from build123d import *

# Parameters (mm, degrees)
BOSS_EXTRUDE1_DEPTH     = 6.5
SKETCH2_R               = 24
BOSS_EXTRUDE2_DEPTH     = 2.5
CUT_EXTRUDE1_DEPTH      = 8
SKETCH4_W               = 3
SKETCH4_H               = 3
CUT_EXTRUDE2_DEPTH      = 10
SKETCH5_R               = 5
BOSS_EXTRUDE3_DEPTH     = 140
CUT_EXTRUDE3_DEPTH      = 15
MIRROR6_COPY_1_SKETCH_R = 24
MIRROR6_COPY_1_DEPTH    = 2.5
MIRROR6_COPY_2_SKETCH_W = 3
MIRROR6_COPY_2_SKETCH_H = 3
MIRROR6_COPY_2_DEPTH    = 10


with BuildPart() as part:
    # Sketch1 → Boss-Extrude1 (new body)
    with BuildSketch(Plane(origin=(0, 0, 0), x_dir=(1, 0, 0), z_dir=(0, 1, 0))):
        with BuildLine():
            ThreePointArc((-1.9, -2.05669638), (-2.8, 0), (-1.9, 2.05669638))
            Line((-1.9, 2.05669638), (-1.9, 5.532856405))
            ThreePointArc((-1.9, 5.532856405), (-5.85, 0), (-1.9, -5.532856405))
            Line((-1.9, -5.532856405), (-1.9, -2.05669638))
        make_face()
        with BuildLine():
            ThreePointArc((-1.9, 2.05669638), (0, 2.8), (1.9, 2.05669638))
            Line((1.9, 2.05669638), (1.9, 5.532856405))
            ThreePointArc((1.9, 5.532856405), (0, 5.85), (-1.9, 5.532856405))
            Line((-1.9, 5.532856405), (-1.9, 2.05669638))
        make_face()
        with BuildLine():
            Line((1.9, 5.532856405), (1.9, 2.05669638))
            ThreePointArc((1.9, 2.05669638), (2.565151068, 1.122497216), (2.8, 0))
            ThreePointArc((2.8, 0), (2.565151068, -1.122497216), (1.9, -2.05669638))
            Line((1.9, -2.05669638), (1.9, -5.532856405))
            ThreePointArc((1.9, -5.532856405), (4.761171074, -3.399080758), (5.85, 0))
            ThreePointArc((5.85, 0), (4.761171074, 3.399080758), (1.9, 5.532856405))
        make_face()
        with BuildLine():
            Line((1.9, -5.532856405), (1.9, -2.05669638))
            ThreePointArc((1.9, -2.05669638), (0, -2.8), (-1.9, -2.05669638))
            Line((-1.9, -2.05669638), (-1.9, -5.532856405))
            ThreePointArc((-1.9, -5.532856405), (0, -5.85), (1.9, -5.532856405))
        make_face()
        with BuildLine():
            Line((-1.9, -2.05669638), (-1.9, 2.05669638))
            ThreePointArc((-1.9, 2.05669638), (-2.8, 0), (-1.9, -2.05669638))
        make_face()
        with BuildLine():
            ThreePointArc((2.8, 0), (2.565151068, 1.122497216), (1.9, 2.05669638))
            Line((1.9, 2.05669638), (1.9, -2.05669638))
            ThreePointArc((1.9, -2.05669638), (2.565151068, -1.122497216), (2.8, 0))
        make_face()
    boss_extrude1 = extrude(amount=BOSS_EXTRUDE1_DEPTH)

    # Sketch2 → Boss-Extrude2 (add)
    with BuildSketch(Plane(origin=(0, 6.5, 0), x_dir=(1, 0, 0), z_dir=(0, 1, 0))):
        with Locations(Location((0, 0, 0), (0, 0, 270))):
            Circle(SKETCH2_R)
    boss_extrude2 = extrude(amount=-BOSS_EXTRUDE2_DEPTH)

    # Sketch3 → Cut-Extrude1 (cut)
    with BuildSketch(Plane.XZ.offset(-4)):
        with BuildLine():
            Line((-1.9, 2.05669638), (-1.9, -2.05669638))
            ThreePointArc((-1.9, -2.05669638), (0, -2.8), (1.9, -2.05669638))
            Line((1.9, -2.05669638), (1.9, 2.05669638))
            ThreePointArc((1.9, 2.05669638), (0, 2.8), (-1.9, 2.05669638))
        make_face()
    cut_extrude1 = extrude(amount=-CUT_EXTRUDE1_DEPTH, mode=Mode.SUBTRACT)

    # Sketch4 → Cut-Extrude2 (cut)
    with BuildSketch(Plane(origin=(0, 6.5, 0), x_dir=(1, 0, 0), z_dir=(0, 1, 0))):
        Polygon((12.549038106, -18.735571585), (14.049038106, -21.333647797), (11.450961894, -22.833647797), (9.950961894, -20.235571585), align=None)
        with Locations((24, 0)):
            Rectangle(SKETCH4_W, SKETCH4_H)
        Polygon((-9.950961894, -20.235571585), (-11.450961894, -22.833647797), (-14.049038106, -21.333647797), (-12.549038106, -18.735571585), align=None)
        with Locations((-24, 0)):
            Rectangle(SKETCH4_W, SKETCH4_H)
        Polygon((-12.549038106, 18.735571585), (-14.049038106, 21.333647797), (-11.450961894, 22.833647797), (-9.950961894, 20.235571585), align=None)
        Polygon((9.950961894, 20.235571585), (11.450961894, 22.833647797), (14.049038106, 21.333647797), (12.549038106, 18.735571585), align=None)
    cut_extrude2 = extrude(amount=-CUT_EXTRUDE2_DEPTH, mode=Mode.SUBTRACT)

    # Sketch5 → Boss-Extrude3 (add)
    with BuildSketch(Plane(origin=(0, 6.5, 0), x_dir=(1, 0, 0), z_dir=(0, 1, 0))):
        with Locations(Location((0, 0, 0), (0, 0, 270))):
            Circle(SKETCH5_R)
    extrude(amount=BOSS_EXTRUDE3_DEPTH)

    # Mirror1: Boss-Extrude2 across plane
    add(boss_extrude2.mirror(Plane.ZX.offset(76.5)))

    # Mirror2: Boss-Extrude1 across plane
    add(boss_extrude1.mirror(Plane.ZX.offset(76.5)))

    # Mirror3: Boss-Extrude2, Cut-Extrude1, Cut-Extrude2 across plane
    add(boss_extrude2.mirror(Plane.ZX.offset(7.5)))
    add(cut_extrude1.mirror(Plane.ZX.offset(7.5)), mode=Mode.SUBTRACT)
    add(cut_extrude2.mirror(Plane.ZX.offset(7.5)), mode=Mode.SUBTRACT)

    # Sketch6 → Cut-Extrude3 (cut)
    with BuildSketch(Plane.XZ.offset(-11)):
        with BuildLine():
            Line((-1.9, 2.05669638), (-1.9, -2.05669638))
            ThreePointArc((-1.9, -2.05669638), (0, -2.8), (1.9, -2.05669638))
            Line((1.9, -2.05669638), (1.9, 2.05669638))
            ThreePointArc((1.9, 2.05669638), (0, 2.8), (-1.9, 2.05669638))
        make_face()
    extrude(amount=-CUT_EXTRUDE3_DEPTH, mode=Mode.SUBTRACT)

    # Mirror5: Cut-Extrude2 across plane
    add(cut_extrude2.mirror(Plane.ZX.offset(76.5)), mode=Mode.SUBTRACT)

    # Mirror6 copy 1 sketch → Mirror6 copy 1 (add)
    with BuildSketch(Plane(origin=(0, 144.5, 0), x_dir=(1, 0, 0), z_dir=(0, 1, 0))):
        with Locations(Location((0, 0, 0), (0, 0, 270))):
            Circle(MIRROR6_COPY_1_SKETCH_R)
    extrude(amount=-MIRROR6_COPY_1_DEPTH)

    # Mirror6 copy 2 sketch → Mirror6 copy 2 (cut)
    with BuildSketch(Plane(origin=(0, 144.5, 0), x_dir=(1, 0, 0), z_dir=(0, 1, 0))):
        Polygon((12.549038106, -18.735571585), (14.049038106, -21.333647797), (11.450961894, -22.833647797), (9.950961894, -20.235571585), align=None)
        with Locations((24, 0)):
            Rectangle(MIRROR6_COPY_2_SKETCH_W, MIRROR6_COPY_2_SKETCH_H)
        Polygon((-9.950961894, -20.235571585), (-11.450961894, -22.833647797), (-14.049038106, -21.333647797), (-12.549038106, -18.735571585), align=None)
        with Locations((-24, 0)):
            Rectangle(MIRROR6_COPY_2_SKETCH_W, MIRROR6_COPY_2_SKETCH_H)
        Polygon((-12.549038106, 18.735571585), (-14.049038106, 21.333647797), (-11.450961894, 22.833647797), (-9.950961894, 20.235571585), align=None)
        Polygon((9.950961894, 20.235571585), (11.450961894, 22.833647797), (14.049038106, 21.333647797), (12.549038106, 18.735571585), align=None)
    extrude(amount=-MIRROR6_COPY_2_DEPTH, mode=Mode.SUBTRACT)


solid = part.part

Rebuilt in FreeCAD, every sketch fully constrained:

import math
import FreeCAD as App
import Part
import Sketcher
from FreeCAD import Vector
Q = App.Units.Quantity


def add_polygon(sketch, points):
    """Adds a closed chain of lines whose ends are joined by coincident constraints."""
    first, n = sketch.GeometryCount, len(points)
    for a, b in zip(points, points[1:] + points[:1]):
        sketch.addGeometry(Part.LineSegment(App.Vector(*a, 0), App.Vector(*b, 0)), False)
    for i in range(n):
        sketch.addConstraint(Sketcher.Constraint("Coincident", first + i, 2, first + (i + 1) % n, 1))

doc = App.newDocument("Part")
body = doc.addObject("PartDesign::Body", "Body")

# Sketch on XZ plane
sketch1 = body.newObject("Sketcher::SketchObject", "Sketch")
sketch1.AttachmentSupport = (doc.getObject("XZ_Plane"), [""])
sketch1.MapMode = "FlatFace"
sketch1.addGeometry(Part.ArcOfCircle(Part.Circle(Vector(0, 0, 0), Vector(0, 0, 1), 5.85), math.radians(0), math.radians(71.04737)), False)
sketch1.addGeometry(Part.ArcOfCircle(Part.Circle(Vector(0, 0, 0), Vector(0, 0, 1), 5.85), math.radians(-71.04737), math.radians(0)), False)
sketch1.addGeometry(Part.ArcOfCircle(Part.Circle(Vector(0, 0, 0), Vector(0, 0, 1), 5.85), math.radians(-108.95263), math.radians(-71.04737)), False)
sketch1.addGeometry(Part.ArcOfCircle(Part.Circle(Vector(0, 0, 0), Vector(0, 0, 1), 5.85), math.radians(108.95263), math.radians(251.04737)), False)
sketch1.addGeometry(Part.ArcOfCircle(Part.Circle(Vector(0, 0, 0), Vector(0, 0, 1), 5.85), math.radians(71.04737), math.radians(108.95263)), False)
sketch1.addGeometry(Part.ArcOfCircle(Part.Circle(Vector(0, 0, 0), Vector(0, 0, 1), 2.8), math.radians(-132.73211), math.radians(-47.26789)), False)
sketch1.addGeometry(Part.LineSegment(Vector(1.9, -2.056696, 0), Vector(1.9, 2.056696, 0)), False)
sketch1.addGeometry(Part.ArcOfCircle(Part.Circle(Vector(0, 0, 0), Vector(0, 0, 1), 2.8), math.radians(47.26789), math.radians(132.73211)), False)
sketch1.addGeometry(Part.LineSegment(Vector(-1.9, 2.056696, 0), Vector(-1.9, -2.056696, 0)), False)
sketch1.addConstraint(Sketcher.Constraint("Tangent", 0, 1, 1, 2))
sketch1.addConstraint(Sketcher.Constraint("Tangent", 1, 1, 2, 2))
sketch1.addConstraint(Sketcher.Constraint("Tangent", 2, 1, 3, 2))
sketch1.addConstraint(Sketcher.Constraint("Tangent", 3, 1, 4, 2))
sketch1.addConstraint(Sketcher.Constraint("Tangent", 4, 1, 0, 2))
sketch1.addConstraint(Sketcher.Constraint("Coincident", 5, 2, 6, 1))
sketch1.addConstraint(Sketcher.Constraint("Coincident", 6, 2, 7, 1))
sketch1.addConstraint(Sketcher.Constraint("Coincident", 7, 2, 8, 1))
sketch1.addConstraint(Sketcher.Constraint("Coincident", 8, 2, 5, 1))
sketch1.addConstraint(Sketcher.Constraint("Vertical", 6))
sketch1.addConstraint(Sketcher.Constraint("Vertical", 8))
sketch1.addConstraint(Sketcher.Constraint("Coincident", 0, 3, -1, 1))
sketch1.addConstraint(Sketcher.Constraint("Coincident", 2, 3, -1, 1))
sketch1.addConstraint(Sketcher.Constraint("Coincident", 5, 3, -1, 1))
sketch1.addConstraint(Sketcher.Constraint("Coincident", 7, 3, -1, 1))
sketch1.addConstraint(Sketcher.Constraint("Equal", 5, 7))
sketch1.addConstraint(Sketcher.Constraint("PointOnObject", 0, 1, -1))
sketch1.addConstraint(Sketcher.Constraint("Horizontal", 1, 1, 2, 1))
sketch1.addConstraint(Sketcher.Constraint("Horizontal", 3, 1, 4, 1))
sketch1.addConstraint(Sketcher.Constraint("Horizontal", 6, 2, 7, 2))
sketch1.addConstraint(Sketcher.Constraint("Vertical", 2, 1, 3, 1))
sketch1.addConstraint(Sketcher.Constraint("Vertical", 4, 1, 5, 2))
sketch1.addConstraint(Sketcher.Constraint("Radius", 5, Q("2.8 mm")))
sketch1.addConstraint(Sketcher.Constraint("Radius", 0, Q("5.85 mm")))
sketch1.addConstraint(Sketcher.Constraint("DistanceX", -1, 1, 1, 1, Q("1.9 mm")))
pad1 = body.newObject("PartDesign::Pad", "Pad")
pad1.Profile = sketch1
pad1.Length = 6.5
pad1.Reversed = True

# Sketch on XZ plane
sketch2 = body.newObject("Sketcher::SketchObject", "Sketch001")
sketch2.AttachmentSupport = (doc.getObject("XZ_Plane"), [""])
sketch2.MapMode = "FlatFace"
sketch2.AttachmentOffset = App.Placement(Vector(0, 0, -6.5), App.Rotation())
sketch2.addGeometry(Part.Circle(Vector(0, 0, 0), Vector(0, 0, 1), 24), False)
sketch2.addConstraint(Sketcher.Constraint("Coincident", 0, 3, -1, 1))
sketch2.addConstraint(Sketcher.Constraint("Diameter", 0, Q("48 mm")))
pad2 = body.newObject("PartDesign::Pad", "Pad001")
pad2.Profile = sketch2
pad2.Length = 2.5

# Sketch on XZ plane
sketch3 = body.newObject("Sketcher::SketchObject", "Sketch002")
sketch3.AttachmentSupport = (doc.getObject("XZ_Plane"), [""])
sketch3.MapMode = "FlatFace"
sketch3.AttachmentOffset = App.Placement(Vector(0, 0, -4), App.Rotation())
sketch3.addGeometry(Part.LineSegment(Vector(-1.9, 2.056696, 0), Vector(-1.9, -2.056696, 0)), False)
sketch3.addGeometry(Part.ArcOfCircle(Part.Circle(Vector(0, 0, 0), Vector(0, 0, 1), 2.8), math.radians(-132.73211), math.radians(-47.26789)), False)
sketch3.addGeometry(Part.LineSegment(Vector(1.9, -2.056696, 0), Vector(1.9, 2.056696, 0)), False)
sketch3.addGeometry(Part.ArcOfCircle(Part.Circle(Vector(0, 0, 0), Vector(0, 0, 1), 2.8), math.radians(47.26789), math.radians(132.73211)), False)
sketch3.addConstraint(Sketcher.Constraint("Coincident", 0, 2, 1, 1))
sketch3.addConstraint(Sketcher.Constraint("Coincident", 1, 2, 2, 1))
sketch3.addConstraint(Sketcher.Constraint("Coincident", 2, 2, 3, 1))
sketch3.addConstraint(Sketcher.Constraint("Coincident", 3, 2, 0, 1))
sketch3.addConstraint(Sketcher.Constraint("Vertical", 0))
sketch3.addConstraint(Sketcher.Constraint("Vertical", 2))
sketch3.addConstraint(Sketcher.Constraint("Coincident", 1, 3, -1, 1))
sketch3.addConstraint(Sketcher.Constraint("Coincident", 3, 3, -1, 1))
sketch3.addConstraint(Sketcher.Constraint("Equal", 1, 3))
sketch3.addConstraint(Sketcher.Constraint("Horizontal", 0, 2, 1, 2))
sketch3.addConstraint(Sketcher.Constraint("Radius", 1, Q("2.8 mm")))
sketch3.addConstraint(Sketcher.Constraint("DistanceX", 0, 2, -1, 1, Q("1.9 mm")))
pocket1 = body.newObject("PartDesign::Pocket", "Pocket")
pocket1.Profile = sketch3
pocket1.Length = 8

# Sketch on XZ plane
sketch4 = body.newObject("Sketcher::SketchObject", "Sketch003")
sketch4.AttachmentSupport = (doc.getObject("XZ_Plane"), [""])
sketch4.MapMode = "FlatFace"
sketch4.AttachmentOffset = App.Placement(Vector(0, 0, -6.5), App.Rotation())
add_polygon(sketch4, [(14.049038, 21.333648), (12.549038, 18.735572), (9.950962, 20.235572), (11.450962, 22.833648)])  # lines 0-3
add_polygon(sketch4, [(22.5, -1.5), (22.5, 1.5), (25.5, 1.5), (25.5, -1.5)])  # lines 4-7
add_polygon(sketch4, [(-11.450962, 22.833648), (-9.950962, 20.235572), (-12.549038, 18.735572), (-14.049038, 21.333648)])  # lines 8-11
add_polygon(sketch4, [(-25.5, -1.5), (-25.5, 1.5), (-22.5, 1.5), (-22.5, -1.5)])  # lines 12-15
add_polygon(sketch4, [(-14.049038, -21.333648), (-12.549038, -18.735572), (-9.950962, -20.235572), (-11.450962, -22.833648)])  # lines 16-19
add_polygon(sketch4, [(11.450962, -22.833648), (9.950962, -20.235572), (12.549038, -18.735572), (14.049038, -21.333648)])  # lines 20-23
sketch4.addConstraint(Sketcher.Constraint("Vertical", 4))
sketch4.addConstraint(Sketcher.Constraint("Horizontal", 5))
sketch4.addConstraint(Sketcher.Constraint("Vertical", 6))
sketch4.addConstraint(Sketcher.Constraint("Horizontal", 7))
sketch4.addConstraint(Sketcher.Constraint("Vertical", 12))
sketch4.addConstraint(Sketcher.Constraint("Horizontal", 13))
sketch4.addConstraint(Sketcher.Constraint("Vertical", 14))
sketch4.addConstraint(Sketcher.Constraint("Horizontal", 15))
sketch4.addConstraint(Sketcher.Constraint("Symmetric", 6, 2, 12, 2, -1, 1))
sketch4.addConstraint(Sketcher.Constraint("Symmetric", 4, 2, 14, 2, -1, 1))
sketch4.addConstraint(Sketcher.Constraint("Symmetric", 0, 2, 16, 2, -1, 1))
sketch4.addConstraint(Sketcher.Constraint("Symmetric", 1, 2, 17, 2, -1, 1))
sketch4.addConstraint(Sketcher.Constraint("Symmetric", 2, 2, 18, 2, -1, 1))
sketch4.addConstraint(Sketcher.Constraint("Symmetric", 3, 2, 19, 2, -1, 1))
sketch4.addConstraint(Sketcher.Constraint("Symmetric", 8, 2, 20, 2, -1, 1))
sketch4.addConstraint(Sketcher.Constraint("Symmetric", 9, 2, 21, 2, -1, 1))
sketch4.addConstraint(Sketcher.Constraint("Symmetric", 10, 2, 22, 2, -1, 1))
sketch4.addConstraint(Sketcher.Constraint("Symmetric", 11, 2, 23, 2, -1, 1))
sketch4.addConstraint(Sketcher.Constraint("Symmetric", 1, 2, 8, 2, -2))
sketch4.addConstraint(Sketcher.Constraint("Symmetric", 0, 2, 9, 2, -2))
sketch4.addConstraint(Sketcher.Constraint("Symmetric", 3, 2, 10, 2, -2))
sketch4.addConstraint(Sketcher.Constraint("Symmetric", 2, 2, 11, 2, -2))
sketch4.addConstraint(Sketcher.Constraint("Perpendicular", 0, 1))
sketch4.addConstraint(Sketcher.Constraint("Perpendicular", 1, 2))
sketch4.addConstraint(Sketcher.Constraint("Perpendicular", 2, 3))
sketch4.addConstraint(Sketcher.Constraint("Horizontal", 5, 2, 12, 2))
sketch4.addConstraint(Sketcher.Constraint("Equal", 15, 4))
sketch4.addConstraint(Sketcher.Constraint("Equal", 0, 1))
sketch4.addConstraint(Sketcher.Constraint("DistanceX", 5, 1, 5, 2, Q("3 mm")))
sketch4.addConstraint(Sketcher.Constraint("Angle", 0, Q("-120 deg")))
sketch4.addConstraint(Sketcher.Constraint("Distance", 0, Q("3 mm")))
sketch4.addConstraint(Sketcher.Constraint("DistanceX", 8, 2, 3, 2, Q("24 mm")))
sketch4.addConstraint(Sketcher.Constraint("DistanceX", -1, 1, 4, 2, Q("22.5 mm")))
sketch4.addConstraint(Sketcher.Constraint("DistanceY", -1, 1, 0, 2, Q("18.735572 mm")))
pocket2 = body.newObject("PartDesign::Pocket", "Pocket001")
pocket2.Profile = sketch4
pocket2.Length = 10
pocket2.Reversed = True

# Sketch on XZ plane
sketch5 = body.newObject("Sketcher::SketchObject", "Sketch004")
sketch5.AttachmentSupport = (doc.getObject("XZ_Plane"), [""])
sketch5.MapMode = "FlatFace"
sketch5.AttachmentOffset = App.Placement(Vector(0, 0, -6.5), App.Rotation())
sketch5.addGeometry(Part.Circle(Vector(0, 0, 0), Vector(0, 0, 1), 5), False)
sketch5.addConstraint(Sketcher.Constraint("Coincident", 0, 3, -1, 1))
sketch5.addConstraint(Sketcher.Constraint("Diameter", 0, Q("10 mm")))
pad3 = body.newObject("PartDesign::Pad", "Pad002")
pad3.Profile = sketch5
pad3.Length = 140
pad3.Reversed = True
doc.recompute()

datumplane = body.newObject("PartDesign::Plane", "DatumPlane")
datumplane.AttachmentSupport = (doc.getObject("XZ_Plane"), [""])
datumplane.MapMode = "FlatFace"
datumplane.AttachmentOffset = App.Placement(Vector(0, 0, -76.5), App.Rotation())
mirrored = body.newObject("PartDesign::Mirrored", "Mirrored")
mirrored.Originals = [pad2]
mirrored.MirrorPlane = (datumplane, [""])
body.Tip = mirrored
doc.recompute()

datumplane2 = body.newObject("PartDesign::Plane", "DatumPlane001")
datumplane2.AttachmentSupport = (doc.getObject("XZ_Plane"), [""])
datumplane2.MapMode = "FlatFace"
datumplane2.AttachmentOffset = App.Placement(Vector(0, 0, -76.5), App.Rotation())
mirrored2 = body.newObject("PartDesign::Mirrored", "Mirrored001")
mirrored2.Originals = [pad1]
mirrored2.MirrorPlane = (datumplane2, [""])
body.Tip = mirrored2
doc.recompute()

datumplane3 = body.newObject("PartDesign::Plane", "DatumPlane002")
datumplane3.AttachmentSupport = (doc.getObject("XZ_Plane"), [""])
datumplane3.MapMode = "FlatFace"
datumplane3.AttachmentOffset = App.Placement(Vector(0, 0, -7.5), App.Rotation())
mirrored3 = body.newObject("PartDesign::Mirrored", "Mirrored002")
mirrored3.Originals = [pad2, pocket1, pocket2]
mirrored3.MirrorPlane = (datumplane3, [""])
body.Tip = mirrored3

# Sketch on XZ plane
sketch6 = body.newObject("Sketcher::SketchObject", "Sketch005")
sketch6.AttachmentSupport = (doc.getObject("XZ_Plane"), [""])
sketch6.MapMode = "FlatFace"
sketch6.AttachmentOffset = App.Placement(Vector(0, 0, -11), App.Rotation())
sketch6.addGeometry(Part.LineSegment(Vector(-1.9, 2.056696, 0), Vector(-1.9, -2.056696, 0)), False)
sketch6.addGeometry(Part.ArcOfCircle(Part.Circle(Vector(0, 0, 0), Vector(0, 0, 1), 2.8), math.radians(-132.73211), math.radians(-47.26789)), False)
sketch6.addGeometry(Part.LineSegment(Vector(1.9, -2.056696, 0), Vector(1.9, 2.056696, 0)), False)
sketch6.addGeometry(Part.ArcOfCircle(Part.Circle(Vector(0, 0, 0), Vector(0, 0, 1), 2.8), math.radians(47.26789), math.radians(132.73211)), False)
sketch6.addConstraint(Sketcher.Constraint("Coincident", 0, 2, 1, 1))
sketch6.addConstraint(Sketcher.Constraint("Coincident", 1, 2, 2, 1))
sketch6.addConstraint(Sketcher.Constraint("Coincident", 2, 2, 3, 1))
sketch6.addConstraint(Sketcher.Constraint("Coincident", 3, 2, 0, 1))
sketch6.addConstraint(Sketcher.Constraint("Vertical", 0))
sketch6.addConstraint(Sketcher.Constraint("Vertical", 2))
sketch6.addConstraint(Sketcher.Constraint("Coincident", 1, 3, -1, 1))
sketch6.addConstraint(Sketcher.Constraint("Coincident", 3, 3, -1, 1))
sketch6.addConstraint(Sketcher.Constraint("Equal", 1, 3))
sketch6.addConstraint(Sketcher.Constraint("Horizontal", 0, 2, 1, 2))
sketch6.addConstraint(Sketcher.Constraint("Radius", 1, Q("2.8 mm")))
sketch6.addConstraint(Sketcher.Constraint("DistanceX", 0, 2, -1, 1, Q("1.9 mm")))
pocket3 = body.newObject("PartDesign::Pocket", "Pocket002")
pocket3.Profile = sketch6
pocket3.Length = 15
doc.recompute()

datumplane4 = body.newObject("PartDesign::Plane", "DatumPlane003")
datumplane4.AttachmentSupport = (doc.getObject("XZ_Plane"), [""])
datumplane4.MapMode = "FlatFace"
datumplane4.AttachmentOffset = App.Placement(Vector(0, 0, -76.5), App.Rotation())
mirrored4 = body.newObject("PartDesign::Mirrored", "Mirrored003")
mirrored4.Originals = [pocket2]
mirrored4.MirrorPlane = (datumplane4, [""])
body.Tip = mirrored4

# Sketch on XZ plane
sketch7 = body.newObject("Sketcher::SketchObject", "Sketch006")
sketch7.AttachmentSupport = (doc.getObject("XZ_Plane"), [""])
sketch7.MapMode = "FlatFace"
sketch7.AttachmentOffset = App.Placement(Vector(0, 0, -144.5), App.Rotation())
sketch7.addGeometry(Part.Circle(Vector(0, 0, 0), Vector(0, 0, 1), 24), False)
sketch7.addConstraint(Sketcher.Constraint("Coincident", 0, 3, -1, 1))
sketch7.addConstraint(Sketcher.Constraint("Diameter", 0, Q("48 mm")))
pad4 = body.newObject("PartDesign::Pad", "Pad003")
pad4.Profile = sketch7
pad4.Length = 2.5

# Sketch on XZ plane
sketch8 = body.newObject("Sketcher::SketchObject", "Sketch007")
sketch8.AttachmentSupport = (doc.getObject("XZ_Plane"), [""])
sketch8.MapMode = "FlatFace"
sketch8.AttachmentOffset = App.Placement(Vector(0, 0, -144.5), App.Rotation())
add_polygon(sketch8, [(14.049038, 21.333648), (12.549038, 18.735572), (9.950962, 20.235572), (11.450962, 22.833648)])  # lines 0-3
add_polygon(sketch8, [(22.5, -1.5), (22.5, 1.5), (25.5, 1.5), (25.5, -1.5)])  # lines 4-7
add_polygon(sketch8, [(-11.450962, 22.833648), (-9.950962, 20.235572), (-12.549038, 18.735572), (-14.049038, 21.333648)])  # lines 8-11
add_polygon(sketch8, [(-25.5, -1.5), (-25.5, 1.5), (-22.5, 1.5), (-22.5, -1.5)])  # lines 12-15
add_polygon(sketch8, [(-14.049038, -21.333648), (-12.549038, -18.735572), (-9.950962, -20.235572), (-11.450962, -22.833648)])  # lines 16-19
add_polygon(sketch8, [(11.450962, -22.833648), (9.950962, -20.235572), (12.549038, -18.735572), (14.049038, -21.333648)])  # lines 20-23
sketch8.addConstraint(Sketcher.Constraint("Vertical", 4))
sketch8.addConstraint(Sketcher.Constraint("Horizontal", 5))
sketch8.addConstraint(Sketcher.Constraint("Vertical", 6))
sketch8.addConstraint(Sketcher.Constraint("Horizontal", 7))
sketch8.addConstraint(Sketcher.Constraint("Vertical", 12))
sketch8.addConstraint(Sketcher.Constraint("Horizontal", 13))
sketch8.addConstraint(Sketcher.Constraint("Vertical", 14))
sketch8.addConstraint(Sketcher.Constraint("Horizontal", 15))
sketch8.addConstraint(Sketcher.Constraint("Symmetric", 6, 2, 12, 2, -1, 1))
sketch8.addConstraint(Sketcher.Constraint("Symmetric", 4, 2, 14, 2, -1, 1))
sketch8.addConstraint(Sketcher.Constraint("Symmetric", 0, 2, 16, 2, -1, 1))
sketch8.addConstraint(Sketcher.Constraint("Symmetric", 1, 2, 17, 2, -1, 1))
sketch8.addConstraint(Sketcher.Constraint("Symmetric", 2, 2, 18, 2, -1, 1))
sketch8.addConstraint(Sketcher.Constraint("Symmetric", 3, 2, 19, 2, -1, 1))
sketch8.addConstraint(Sketcher.Constraint("Symmetric", 8, 2, 20, 2, -1, 1))
sketch8.addConstraint(Sketcher.Constraint("Symmetric", 9, 2, 21, 2, -1, 1))
sketch8.addConstraint(Sketcher.Constraint("Symmetric", 10, 2, 22, 2, -1, 1))
sketch8.addConstraint(Sketcher.Constraint("Symmetric", 11, 2, 23, 2, -1, 1))
sketch8.addConstraint(Sketcher.Constraint("Symmetric", 1, 2, 8, 2, -2))
sketch8.addConstraint(Sketcher.Constraint("Symmetric", 0, 2, 9, 2, -2))
sketch8.addConstraint(Sketcher.Constraint("Symmetric", 3, 2, 10, 2, -2))
sketch8.addConstraint(Sketcher.Constraint("Symmetric", 2, 2, 11, 2, -2))
sketch8.addConstraint(Sketcher.Constraint("Perpendicular", 0, 1))
sketch8.addConstraint(Sketcher.Constraint("Perpendicular", 1, 2))
sketch8.addConstraint(Sketcher.Constraint("Perpendicular", 2, 3))
sketch8.addConstraint(Sketcher.Constraint("Horizontal", 5, 2, 12, 2))
sketch8.addConstraint(Sketcher.Constraint("Equal", 15, 4))
sketch8.addConstraint(Sketcher.Constraint("Equal", 0, 1))
sketch8.addConstraint(Sketcher.Constraint("DistanceX", 5, 1, 5, 2, Q("3 mm")))
sketch8.addConstraint(Sketcher.Constraint("Angle", 0, Q("-120 deg")))
sketch8.addConstraint(Sketcher.Constraint("Distance", 0, Q("3 mm")))
sketch8.addConstraint(Sketcher.Constraint("DistanceX", 8, 2, 3, 2, Q("24 mm")))
sketch8.addConstraint(Sketcher.Constraint("DistanceX", -1, 1, 4, 2, Q("22.5 mm")))
sketch8.addConstraint(Sketcher.Constraint("DistanceY", -1, 1, 0, 2, Q("18.735572 mm")))
pocket4 = body.newObject("PartDesign::Pocket", "Pocket003")
pocket4.Profile = sketch8
pocket4.Length = 10
pocket4.Reversed = True

doc.recompute()
